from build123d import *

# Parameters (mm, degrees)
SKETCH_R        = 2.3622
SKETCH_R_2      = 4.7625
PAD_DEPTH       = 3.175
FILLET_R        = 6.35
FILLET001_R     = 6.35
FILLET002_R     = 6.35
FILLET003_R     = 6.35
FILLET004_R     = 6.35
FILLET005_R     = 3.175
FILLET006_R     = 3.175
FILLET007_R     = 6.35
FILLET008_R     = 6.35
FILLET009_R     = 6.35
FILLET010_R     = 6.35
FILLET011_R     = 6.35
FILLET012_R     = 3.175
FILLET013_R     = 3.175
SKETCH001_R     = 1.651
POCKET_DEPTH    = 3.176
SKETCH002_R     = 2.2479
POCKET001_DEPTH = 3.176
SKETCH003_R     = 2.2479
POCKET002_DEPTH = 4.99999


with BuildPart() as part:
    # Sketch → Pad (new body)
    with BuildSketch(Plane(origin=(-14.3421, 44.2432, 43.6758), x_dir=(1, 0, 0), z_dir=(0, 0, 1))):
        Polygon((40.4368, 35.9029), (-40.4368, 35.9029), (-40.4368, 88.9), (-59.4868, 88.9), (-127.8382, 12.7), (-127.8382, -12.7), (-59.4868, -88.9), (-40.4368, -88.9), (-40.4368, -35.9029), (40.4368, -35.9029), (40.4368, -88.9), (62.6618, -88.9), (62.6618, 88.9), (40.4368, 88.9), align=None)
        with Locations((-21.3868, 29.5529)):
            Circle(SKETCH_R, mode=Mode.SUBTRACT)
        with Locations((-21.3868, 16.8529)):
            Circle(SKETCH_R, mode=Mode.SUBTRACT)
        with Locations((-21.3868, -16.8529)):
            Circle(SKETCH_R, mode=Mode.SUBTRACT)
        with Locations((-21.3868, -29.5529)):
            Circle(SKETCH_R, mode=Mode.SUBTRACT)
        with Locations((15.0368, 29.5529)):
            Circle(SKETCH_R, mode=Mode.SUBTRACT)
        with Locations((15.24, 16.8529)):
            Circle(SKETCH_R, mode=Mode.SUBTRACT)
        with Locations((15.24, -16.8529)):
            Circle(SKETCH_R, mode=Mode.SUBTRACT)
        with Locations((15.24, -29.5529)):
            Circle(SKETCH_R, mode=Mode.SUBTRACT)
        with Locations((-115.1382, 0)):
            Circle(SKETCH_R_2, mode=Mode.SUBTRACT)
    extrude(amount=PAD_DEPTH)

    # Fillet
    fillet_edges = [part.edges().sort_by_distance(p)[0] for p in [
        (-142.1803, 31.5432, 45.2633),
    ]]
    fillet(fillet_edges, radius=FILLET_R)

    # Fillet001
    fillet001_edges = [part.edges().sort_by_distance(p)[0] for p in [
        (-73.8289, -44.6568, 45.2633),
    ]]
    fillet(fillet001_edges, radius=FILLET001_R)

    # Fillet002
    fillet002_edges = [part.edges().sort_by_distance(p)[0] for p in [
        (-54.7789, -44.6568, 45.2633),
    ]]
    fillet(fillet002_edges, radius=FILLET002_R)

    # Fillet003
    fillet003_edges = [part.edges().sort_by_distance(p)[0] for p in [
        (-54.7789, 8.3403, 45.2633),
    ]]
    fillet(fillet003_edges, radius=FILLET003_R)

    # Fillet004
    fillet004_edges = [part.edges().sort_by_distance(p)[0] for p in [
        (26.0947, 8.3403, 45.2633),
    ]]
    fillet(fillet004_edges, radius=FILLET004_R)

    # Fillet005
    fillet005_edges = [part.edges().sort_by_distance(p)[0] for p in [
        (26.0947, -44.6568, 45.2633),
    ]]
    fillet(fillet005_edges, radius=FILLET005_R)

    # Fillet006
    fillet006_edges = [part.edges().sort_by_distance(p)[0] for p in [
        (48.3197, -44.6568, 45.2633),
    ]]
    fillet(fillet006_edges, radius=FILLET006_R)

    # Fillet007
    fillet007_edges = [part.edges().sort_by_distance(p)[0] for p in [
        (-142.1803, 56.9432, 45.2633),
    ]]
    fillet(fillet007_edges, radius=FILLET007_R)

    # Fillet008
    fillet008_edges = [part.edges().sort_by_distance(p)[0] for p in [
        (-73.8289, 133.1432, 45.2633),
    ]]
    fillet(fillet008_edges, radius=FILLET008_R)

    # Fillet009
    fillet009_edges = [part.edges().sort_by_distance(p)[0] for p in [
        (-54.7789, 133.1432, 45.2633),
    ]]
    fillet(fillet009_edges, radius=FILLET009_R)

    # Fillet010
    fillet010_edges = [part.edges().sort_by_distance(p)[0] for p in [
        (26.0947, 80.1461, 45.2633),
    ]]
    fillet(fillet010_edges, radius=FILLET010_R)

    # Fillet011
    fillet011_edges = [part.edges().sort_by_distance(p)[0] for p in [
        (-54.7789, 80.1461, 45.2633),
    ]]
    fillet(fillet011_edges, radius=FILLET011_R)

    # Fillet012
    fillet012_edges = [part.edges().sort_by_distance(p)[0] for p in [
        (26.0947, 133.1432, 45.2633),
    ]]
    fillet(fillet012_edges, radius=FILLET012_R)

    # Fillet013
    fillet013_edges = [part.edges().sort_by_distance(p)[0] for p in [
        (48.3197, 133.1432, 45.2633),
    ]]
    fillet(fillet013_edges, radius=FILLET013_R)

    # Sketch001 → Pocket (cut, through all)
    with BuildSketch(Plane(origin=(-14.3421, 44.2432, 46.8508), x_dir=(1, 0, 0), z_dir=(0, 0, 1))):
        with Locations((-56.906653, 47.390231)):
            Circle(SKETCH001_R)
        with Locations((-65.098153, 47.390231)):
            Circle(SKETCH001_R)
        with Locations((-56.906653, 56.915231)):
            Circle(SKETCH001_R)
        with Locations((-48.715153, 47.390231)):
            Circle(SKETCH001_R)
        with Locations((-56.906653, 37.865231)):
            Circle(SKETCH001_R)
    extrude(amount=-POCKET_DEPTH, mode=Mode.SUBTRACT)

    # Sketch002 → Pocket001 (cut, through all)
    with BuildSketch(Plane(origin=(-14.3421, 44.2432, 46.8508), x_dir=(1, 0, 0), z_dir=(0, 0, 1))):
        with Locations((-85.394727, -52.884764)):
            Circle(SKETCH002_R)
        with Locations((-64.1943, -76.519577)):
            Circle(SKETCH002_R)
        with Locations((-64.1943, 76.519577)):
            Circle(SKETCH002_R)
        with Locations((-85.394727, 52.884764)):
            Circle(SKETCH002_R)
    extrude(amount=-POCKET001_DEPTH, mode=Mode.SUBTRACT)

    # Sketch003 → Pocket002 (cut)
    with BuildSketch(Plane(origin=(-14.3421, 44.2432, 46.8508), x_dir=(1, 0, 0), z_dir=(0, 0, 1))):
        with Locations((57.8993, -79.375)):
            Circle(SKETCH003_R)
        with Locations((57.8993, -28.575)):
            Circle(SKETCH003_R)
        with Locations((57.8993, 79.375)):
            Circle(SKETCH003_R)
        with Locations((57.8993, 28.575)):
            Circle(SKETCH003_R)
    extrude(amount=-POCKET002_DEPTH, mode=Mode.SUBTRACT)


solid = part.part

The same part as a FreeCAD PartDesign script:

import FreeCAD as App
import Part
import Sketcher

V = App.Vector
Q = App.Units.Quantity


def edges_at(feature, points):
    """Names of the edges that pass closest to the given points."""
    edges = feature.Shape.Edges
    near = lambda p: min(range(len(edges)), key=lambda i: edges[i].distToShape(Part.Vertex(*p))[0])
    return sorted({f"Edge{near(p) + 1}" for p in points})

doc = App.newDocument("Part")
body = doc.addObject("PartDesign::Body", "Body")

sketch1 = body.newObject("Sketcher::SketchObject", "Sketch")
sketch1.AttachmentSupport = (doc.getObject("XY_Plane"), [""])
sketch1.MapMode = "FlatFace"
sketch1.AttachmentOffset = App.Placement(V(0, 0, 43.6758), App.Rotation())
sketch1.addGeometry(Part.LineSegment(V(26.1, 80.1, 0), V(-54.8, 80.1, 0)), False)
sketch1.addGeometry(Part.LineSegment(V(-54.8, 80.1, 0), V(-54.8, 133.1, 0)), False)
sketch1.addGeometry(Part.LineSegment(V(-54.8, 133.1, 0), V(-73.8, 133.1, 0)), False)
sketch1.addGeometry(Part.LineSegment(V(-73.8, 133.1, 0), V(-142.2, 56.9, 0)), False)
sketch1.addGeometry(Part.LineSegment(V(-142.2, 56.9, 0), V(-142.2, 31.5, 0)), False)
sketch1.addGeometry(Part.LineSegment(V(-142.2, 31.5, 0), V(-73.8, -44.7, 0)), False)
sketch1.addGeometry(Part.LineSegment(V(-73.8, -44.7, 0), V(-54.8, -44.7, 0)), False)
sketch1.addGeometry(Part.LineSegment(V(-54.8, -44.7, 0), V(-54.8, 8.3, 0)), False)
sketch1.addGeometry(Part.LineSegment(V(-54.8, 8.3, 0), V(26.1, 8.3, 0)), False)
sketch1.addGeometry(Part.LineSegment(V(26.1, 8.3, 0), V(26.1, -44.7, 0)), False)
sketch1.addGeometry(Part.LineSegment(V(26.1, -44.7, 0), V(48.3, -44.7, 0)), False)
sketch1.addGeometry(Part.LineSegment(V(48.3, -44.7, 0), V(48.3, 133.1, 0)), False)
sketch1.addGeometry(Part.LineSegment(V(48.3, 133.1, 0), V(26.1, 133.1, 0)), False)
sketch1.addGeometry(Part.LineSegment(V(26.1, 133.1, 0), V(26.1, 80.1, 0)), False)
sketch1.addGeometry(Part.Circle(V(-35.7, 14.7, 0), V(0, 0, 1), 2.4), False)
sketch1.addGeometry(Part.Circle(V(-35.7, 27.4, 0), V(0, 0, 1), 2.4), False)
sketch1.addGeometry(Part.Circle(V(0.9, 14.7, 0), V(0, 0, 1), 2.4), False)
sketch1.addGeometry(Part.Circle(V(0.9, 27.4, 0), V(0, 0, 1), 2.4), False)
sketch1.addGeometry(Part.Circle(V(-129.5, 44.2, 0), V(0, 0, 1), 4.8), False)
sketch1.addGeometry(Part.Circle(V(-35.7, 61.1, 0), V(0, 0, 1), 2.4), False)
sketch1.addGeometry(Part.Circle(V(-35.7, 73.8, 0), V(0, 0, 1), 2.4), False)
sketch1.addGeometry(Part.Circle(V(0.9, 61.1, 0), V(0, 0, 1), 2.4), False)
sketch1.addGeometry(Part.Circle(V(0.7, 73.8, 0), V(0, 0, 1), 2.4), False)
sketch1.addConstraint(Sketcher.Constraint("Coincident", 0, 2, 1, 1))
sketch1.addConstraint(Sketcher.Constraint("Coincident", 1, 2, 2, 1))
sketch1.addConstraint(Sketcher.Constraint("Coincident", 2, 2, 3, 1))
sketch1.addConstraint(Sketcher.Constraint("Coincident", 3, 2, 4, 1))
sketch1.addConstraint(Sketcher.Constraint("Coincident", 4, 2, 5, 1))
sketch1.addConstraint(Sketcher.Constraint("Coincident", 5, 2, 6, 1))
sketch1.addConstraint(Sketcher.Constraint("Coincident", 6, 2, 7, 1))
sketch1.addConstraint(Sketcher.Constraint("Coincident", 7, 2, 8, 1))
sketch1.addConstraint(Sketcher.Constraint("Coincident", 8, 2, 9, 1))
sketch1.addConstraint(Sketcher.Constraint("Coincident", 9, 2, 10, 1))
sketch1.addConstraint(Sketcher.Constraint("Coincident", 10, 2, 11, 1))
sketch1.addConstraint(Sketcher.Constraint("Coincident", 11, 2, 12, 1))
sketch1.addConstraint(Sketcher.Constraint("Coincident", 12, 2, 13, 1))
sketch1.addConstraint(Sketcher.Constraint("Coincident", 13, 2, 0, 1))
sketch1.addConstraint(Sketcher.Constraint("Horizontal", 0))
sketch1.addConstraint(Sketcher.Constraint("Vertical", 1))
sketch1.addConstraint(Sketcher.Constraint("Horizontal", 2))
sketch1.addConstraint(Sketcher.Constraint("Vertical", 4))
sketch1.addConstraint(Sketcher.Constraint("Horizontal", 6))
sketch1.addConstraint(Sketcher.Constraint("Vertical", 7))
sketch1.addConstraint(Sketcher.Constraint("Horizontal", 8))
sketch1.addConstraint(Sketcher.Constraint("Vertical", 9))
sketch1.addConstraint(Sketcher.Constraint("Horizontal", 10))
sketch1.addConstraint(Sketcher.Constraint("Vertical", 11))
sketch1.addConstraint(Sketcher.Constraint("Horizontal", 12))
sketch1.addConstraint(Sketcher.Constraint("Vertical", 13))
sketch1.addConstraint(Sketcher.Constraint("Equal", 14, 15))
sketch1.addConstraint(Sketcher.Constraint("Equal", 15, 16))
sketch1.addConstraint(Sketcher.Constraint("Equal", 16, 17))
sketch1.addConstraint(Sketcher.Constraint("Equal", 17, 19))
sketch1.addConstraint(Sketcher.Constraint("Equal", 19, 20))
sketch1.addConstraint(Sketcher.Constraint("Equal", 20, 21))
sketch1.addConstraint(Sketcher.Constraint("Equal", 21, 22))
sketch1.addConstraint(Sketcher.Constraint("Horizontal", 14, 3, 16, 3))
sketch1.addConstraint(Sketcher.Constraint("Horizontal", 15, 3, 17, 3))
sketch1.addConstraint(Sketcher.Constraint("Horizontal", 19, 3, 21, 3))
sketch1.addConstraint(Sketcher.Constraint("Horizontal", 20, 3, 22, 3))
sketch1.addConstraint(Sketcher.Constraint("Horizontal", 6, 2, 9, 2))
sketch1.addConstraint(Sketcher.Constraint("Horizontal", 2, 2, 11, 2))
sketch1.addConstraint(Sketcher.Constraint("Vertical", 14, 3, 15, 3))
sketch1.addConstraint(Sketcher.Constraint("Vertical", 16, 3, 17, 3))
sketch1.addConstraint(Sketcher.Constraint("Vertical", 15, 3, 19, 3))
sketch1.addConstraint(Sketcher.Constraint("Vertical", 19, 3, 20, 3))
sketch1.addConstraint(Sketcher.Constraint("Vertical", 17, 3, 21, 3))
sketch1.addConstraint(Sketcher.Constraint("Vertical", 2, 2, 5, 2))
sketch1.addConstraint(Sketcher.Constraint("Vertical", 1, 2, 6, 2))
sketch1.addConstraint(Sketcher.Constraint("Vertical", 9, 2, 12, 2))
sketch1.addConstraint(Sketcher.Constraint("Equal", 1, 7))
sketch1.addConstraint(Sketcher.Constraint("Equal", 3, 5))
sketch1.addConstraint(Sketcher.Constraint("DistanceY", 4, 2, 4, 1, Q("1 in")))
sketch1.addConstraint(Sketcher.Constraint("DistanceY", 11, 1, 11, 2, Q("7 in")))
sketch1.addConstraint(Sketcher.Constraint("Diameter", 14, Q("0.186 in")))
sketch1.addConstraint(Sketcher.Constraint("Diameter", 18, Q("0.375 in")))
sketch1.addConstraint(Sketcher.Constraint("DistanceX", 22, 3, 12, 2, Q("1 in")))
sketch1.addConstraint(Sketcher.Constraint("DistanceX", 2, 2, 2, 1, Q("0.75 in")))
sketch1.addConstraint(Sketcher.Constraint("DistanceY", 14, 3, 15, 3, Q("0.5 in")))
sketch1.addConstraint(Sketcher.Constraint("DistanceY", 19, 3, 20, 3, Q("0.5 in")))
sketch1.addConstraint(Sketcher.Constraint("DistanceX", 2, 2, 20, 3, Q("1.5 in")))
sketch1.addConstraint(Sketcher.Constraint("DistanceX", 3, 2, 18, 3, Q("0.5 in")))
sketch1.addConstraint(Sketcher.Constraint("DistanceY", 18, 3, 3, 2, Q("0.5 in")))
sketch1.addConstraint(Sketcher.Constraint("DistanceX", 0, 2, 0, 1, Q("3.184 in")))
sketch1.addConstraint(Sketcher.Constraint("DistanceX", 10, 1, 10, 2, Q("0.875 in")))
sketch1.addConstraint(Sketcher.Constraint("DistanceY", 20, 3, 0, 2, Q("0.25 in")))
sketch1.addConstraint(Sketcher.Constraint("DistanceY", 7, 2, 14, 3, Q("0.25 in")))
sketch1.addConstraint(Sketcher.Constraint("DistanceY", 1, 1, 1, 2, Q("2.0865 in")))
sketch1.addConstraint(Sketcher.Constraint("DistanceX", 14, 3, 16, 3, Q("1.442 in")))
sketch1.addConstraint(Sketcher.Constraint("DistanceX", 18, 3, 15, 3, Q("3.691 in")))
sketch1.addConstraint(Sketcher.Constraint("DistanceX", 14, 3, -1, 1, 35.7289))
sketch1.addConstraint(Sketcher.Constraint("DistanceY", -1, 1, 14, 3, 14.6903))
pad1 = body.newObject("PartDesign::Pad", "Pad")
pad1.Profile = sketch1
pad1.Length = Q("0.125 in")
doc.recompute()

fillet = body.newObject("PartDesign::Fillet", "Fillet")
fillet.Base = (pad1, edges_at(pad1, [(-142.18, 31.543, 45.263)]))
fillet.Radius = Q("0.25 in")
doc.recompute()

fillet2 = body.newObject("PartDesign::Fillet", "Fillet001")
fillet2.Base = (fillet, edges_at(fillet, [(-73.829, -44.657, 45.263)]))
fillet2.Radius = Q("0.25 in")
doc.recompute()

fillet3 = body.newObject("PartDesign::Fillet", "Fillet002")
fillet3.Base = (fillet2, edges_at(fillet2, [(-54.779, -44.657, 45.263)]))
fillet3.Radius = Q("0.25 in")
doc.recompute()

fillet4 = body.newObject("PartDesign::Fillet", "Fillet003")
fillet4.Base = (fillet3, edges_at(fillet3, [(-54.779, 8.34, 45.263)]))
fillet4.Radius = Q("0.25 in")
doc.recompute()

fillet5 = body.newObject("PartDesign::Fillet", "Fillet004")
fillet5.Base = (fillet4, edges_at(fillet4, [(26.095, 8.34, 45.263)]))
fillet5.Radius = Q("0.25 in")
doc.recompute()

fillet6 = body.newObject("PartDesign::Fillet", "Fillet005")
fillet6.Base = (fillet5, edges_at(fillet5, [(26.095, -44.657, 45.263)]))
fillet6.Radius = Q("0.125 in")
doc.recompute()

fillet7 = body.newObject("PartDesign::Fillet", "Fillet006")
fillet7.Base = (fillet6, edges_at(fillet6, [(48.32, -44.657, 45.263)]))
fillet7.Radius = Q("0.125 in")
doc.recompute()

fillet8 = body.newObject("PartDesign::Fillet", "Fillet007")
fillet8.Base = (fillet7, edges_at(fillet7, [(-142.18, 56.943, 45.263)]))
fillet8.Radius = Q("0.25 in")
doc.recompute()

fillet9 = body.newObject("PartDesign::Fillet", "Fillet008")
fillet9.Base = (fillet8, edges_at(fillet8, [(-73.829, 133.143, 45.263)]))
fillet9.Radius = Q("0.25 in")
doc.recompute()

fillet10 = body.newObject("PartDesign::Fillet", "Fillet009")
fillet10.Base = (fillet9, edges_at(fillet9, [(-54.779, 133.143, 45.263)]))
fillet10.Radius = Q("0.25 in")
doc.recompute()

fillet11 = body.newObject("PartDesign::Fillet", "Fillet010")
fillet11.Base = (fillet10, edges_at(fillet10, [(26.095, 80.146, 45.263)]))
fillet11.Radius = Q("0.25 in")
doc.recompute()

fillet12 = body.newObject("PartDesign::Fillet", "Fillet011")
fillet12.Base = (fillet11, edges_at(fillet11, [(-54.779, 80.146, 45.263)]))
fillet12.Radius = Q("0.25 in")
doc.recompute()

fillet13 = body.newObject("PartDesign::Fillet", "Fillet012")
fillet13.Base = (fillet12, edges_at(fillet12, [(26.095, 133.143, 45.263)]))
fillet13.Radius = Q("0.125 in")
doc.recompute()

fillet14 = body.newObject("PartDesign::Fillet", "Fillet013")
fillet14.Base = (fillet13, edges_at(fillet13, [(48.32, 133.143, 45.263)]))
fillet14.Radius = Q("0.125 in")

sketch2 = body.newObject("Sketcher::SketchObject", "Sketch001")
sketch2.AttachmentSupport = (doc.getObject("XY_Plane"), [""])
sketch2.MapMode = "FlatFace"
sketch2.AttachmentOffset = App.Placement(V(0, 0, 46.8508), App.Rotation())
sketch2.addGeometry(Part.Circle(V(-71.2, 91.6, 0), V(0, 0, 1), 1.7), False)
sketch2.addGeometry(Part.Circle(V(-79.4, 91.6, 0), V(0, 0, 1), 1.7), False)
sketch2.addGeometry(Part.Circle(V(-71.2, 101.2, 0), V(0, 0, 1), 1.7), False)
sketch2.addGeometry(Part.Circle(V(-63.1, 91.6, 0), V(0, 0, 1), 1.7), False)
sketch2.addGeometry(Part.Circle(V(-71.2, 82.1, 0), V(0, 0, 1), 1.7), False)
sketch2.addConstraint(Sketcher.Constraint("Equal", 0, 1))
sketch2.addConstraint(Sketcher.Constraint("Equal", 1, 2))
sketch2.addConstraint(Sketcher.Constraint("Equal", 2, 3))
sketch2.addConstraint(Sketcher.Constraint("Equal", 3, 4))
sketch2.addConstraint(Sketcher.Constraint("Horizontal", 0, 3, 1, 3))
sketch2.addConstraint(Sketcher.Constraint("Horizontal", 1, 3, 3, 3))
sketch2.addConstraint(Sketcher.Constraint("Vertical", 0, 3, 2, 3))
sketch2.addConstraint(Sketcher.Constraint("Vertical", 2, 3, 4, 3))
sketch2.addConstraint(Sketcher.Constraint("Diameter", 0, Q("0.13 in")))
sketch2.addConstraint(Sketcher.Constraint("DistanceY", 4, 3, 2, 3, Q("0.75 in")))
sketch2.addConstraint(Sketcher.Constraint("DistanceY", 0, 3, 2, 3, Q("0.375 in")))
sketch2.addConstraint(Sketcher.Constraint("DistanceX", 1, 3, 3, 3, Q("0.645 in")))
sketch2.addConstraint(Sketcher.Constraint("DistanceX", 1, 3, 0, 3, Q("0.3225 in")))
sketch2.addConstraint(Sketcher.Constraint("DistanceY", -1, 1, 0, 3, 91.633431))
sketch2.addConstraint(Sketcher.Constraint("DistanceX", 0, 3, -1, 1, 71.248753))
pocket1 = body.newObject("PartDesign::Pocket", "Pocket")
pocket1.Profile = sketch2
pocket1.Type = "ThroughAll"

sketch3 = body.newObject("Sketcher::SketchObject", "Sketch002")
sketch3.AttachmentSupport = (doc.getObject("XY_Plane"), [""])
sketch3.MapMode = "FlatFace"
sketch3.AttachmentOffset = App.Placement(V(0, 0, 46.8508), App.Rotation())
sketch3.addGeometry(Part.Circle(V(-99.7, -8.6, 0), V(0, 0, 1), 2.2), False)
sketch3.addGeometry(Part.Circle(V(-78.5, -32.3, 0), V(0, 0, 1), 2.2), False)
sketch3.addGeometry(Part.Circle(V(-78.5, 120.8, 0), V(0, 0, 1), 2.2), False)
sketch3.addGeometry(Part.Circle(V(-99.7, 97.1, 0), V(0, 0, 1), 2.2), False)
sketch3.addConstraint(Sketcher.Constraint("Equal", 0, 1))
sketch3.addConstraint(Sketcher.Constraint("Equal", 1, 2))
sketch3.addConstraint(Sketcher.Constraint("Equal", 2, 3))
sketch3.addConstraint(Sketcher.Constraint("Vertical", 1, 3, 2, 3))
sketch3.addConstraint(Sketcher.Constraint("Vertical", 0, 3, 3, 3))
sketch3.addConstraint(Sketcher.Constraint("Diameter", 0, Q("0.177 in")))
sketch3.addConstraint(Sketcher.Constraint("DistanceX", 1, 3, -1, 1, 78.5364))
sketch3.addConstraint(Sketcher.Constraint("DistanceY", 0, 3, 2, 3, 129.404341))
sketch3.addConstraint(Sketcher.Constraint("DistanceY", 0, 3, 3, 3, 105.769528))
sketch3.addConstraint(Sketcher.Constraint("DistanceY", 1, 3, 3, 3, 129.404341))
sketch3.addConstraint(Sketcher.Constraint("DistanceX", 0, 3, -1, 1, 99.736827))
sketch3.addConstraint(Sketcher.Constraint("DistanceY", 0, 3, -1, 1, 8.641564))
pocket2 = body.newObject("PartDesign::Pocket", "Pocket001")
pocket2.Profile = sketch3
pocket2.Type = "ThroughAll"

sketch4 = body.newObject("Sketcher::SketchObject", "Sketch003")
sketch4.AttachmentSupport = (doc.getObject("XY_Plane"), [""])
sketch4.MapMode = "FlatFace"
sketch4.AttachmentOffset = App.Placement(V(0, 0, 46.8508), App.Rotation())
sketch4.addGeometry(Part.Circle(V(43.6, -35.1, 0), V(0, 0, 1), 2.2), False)
sketch4.addGeometry(Part.Circle(V(43.6, 15.7, 0), V(0, 0, 1), 2.2), False)
sketch4.addGeometry(Part.Circle(V(43.6, 123.6, 0), V(0, 0, 1), 2.2), False)
sketch4.addGeometry(Part.Circle(V(43.6, 72.8, 0), V(0, 0, 1), 2.2), False)
sketch4.addConstraint(Sketcher.Constraint("Equal", 0, 1))
sketch4.addConstraint(Sketcher.Constraint("Equal", 1, 2))
sketch4.addConstraint(Sketcher.Constraint("Equal", 2, 3))
sketch4.addConstraint(Sketcher.Constraint("Vertical", 0, 3, 1, 3))
sketch4.addConstraint(Sketcher.Constraint("Vertical", 1, 3, 2, 3))
sketch4.addConstraint(Sketcher.Constraint("Vertical", 2, 3, 3, 3))
sketch4.addConstraint(Sketcher.Constraint("Diameter", 0, Q("0.177 in")))
sketch4.addConstraint(Sketcher.Constraint("DistanceY", 0, 3, 1, 3, Q("2 in")))
sketch4.addConstraint(Sketcher.Constraint("DistanceY", 3, 3, 2, 3, Q("2 in")))
sketch4.addConstraint(Sketcher.Constraint("DistanceY", 1, 3, 2, 3, Q("4.25 in")))
sketch4.addConstraint(Sketcher.Constraint("DistanceX", -1, 1, 0, 3, 43.5572))
sketch4.addConstraint(Sketcher.Constraint("DistanceY", 0, 3, -1, 1, 35.1318))
pocket3 = body.newObject("PartDesign::Pocket", "Pocket002")
pocket3.Profile = sketch4
pocket3.Length = 4.99999

doc.recompute()
